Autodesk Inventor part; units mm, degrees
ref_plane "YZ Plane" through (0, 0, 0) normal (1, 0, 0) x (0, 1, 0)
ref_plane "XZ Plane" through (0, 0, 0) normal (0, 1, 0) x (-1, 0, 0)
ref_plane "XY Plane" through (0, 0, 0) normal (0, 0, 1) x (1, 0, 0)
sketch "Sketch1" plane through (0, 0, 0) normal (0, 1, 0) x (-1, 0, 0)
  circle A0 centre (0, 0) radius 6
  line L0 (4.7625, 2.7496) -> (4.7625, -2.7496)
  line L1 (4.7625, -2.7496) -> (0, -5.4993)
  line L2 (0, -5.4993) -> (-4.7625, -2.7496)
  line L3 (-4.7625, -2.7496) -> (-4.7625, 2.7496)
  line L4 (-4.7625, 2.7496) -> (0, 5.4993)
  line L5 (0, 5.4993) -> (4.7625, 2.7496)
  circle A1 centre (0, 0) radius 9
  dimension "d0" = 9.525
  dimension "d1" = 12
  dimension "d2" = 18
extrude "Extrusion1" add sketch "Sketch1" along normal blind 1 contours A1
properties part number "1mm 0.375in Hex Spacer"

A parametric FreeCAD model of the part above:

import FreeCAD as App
import Part
import Sketcher

V = App.Vector

doc = App.newDocument("Part")
body = doc.addObject("PartDesign::Body", "Body")

sketch1 = body.newObject("Sketcher::SketchObject", "Sketch")
sketch1.AttachmentSupport = (doc.getObject("XZ_Plane"), [""])
sketch1.MapMode = "FlatFace"
sketch1.addGeometry([
    Part.Circle(V(0, 0, 0), V(0, 0, 1), 9),
    Part.Circle(V(0, 0, 0), V(0, 0, 1), 6),
], False)
sketch1.addConstraint([
    Sketcher.Constraint("Coincident", 0, 3, -1, 1),
    Sketcher.Constraint("Coincident", 1, 3, -1, 1),
    Sketcher.Constraint("Diameter", 0, 18.0),
    Sketcher.Constraint("Diameter", 1, 12.0),
])
pad1 = body.newObject("PartDesign::Pad", "Pad")
pad1.Profile = sketch1
pad1.Length = 1
pad1.Reversed = True

doc.recompute()
